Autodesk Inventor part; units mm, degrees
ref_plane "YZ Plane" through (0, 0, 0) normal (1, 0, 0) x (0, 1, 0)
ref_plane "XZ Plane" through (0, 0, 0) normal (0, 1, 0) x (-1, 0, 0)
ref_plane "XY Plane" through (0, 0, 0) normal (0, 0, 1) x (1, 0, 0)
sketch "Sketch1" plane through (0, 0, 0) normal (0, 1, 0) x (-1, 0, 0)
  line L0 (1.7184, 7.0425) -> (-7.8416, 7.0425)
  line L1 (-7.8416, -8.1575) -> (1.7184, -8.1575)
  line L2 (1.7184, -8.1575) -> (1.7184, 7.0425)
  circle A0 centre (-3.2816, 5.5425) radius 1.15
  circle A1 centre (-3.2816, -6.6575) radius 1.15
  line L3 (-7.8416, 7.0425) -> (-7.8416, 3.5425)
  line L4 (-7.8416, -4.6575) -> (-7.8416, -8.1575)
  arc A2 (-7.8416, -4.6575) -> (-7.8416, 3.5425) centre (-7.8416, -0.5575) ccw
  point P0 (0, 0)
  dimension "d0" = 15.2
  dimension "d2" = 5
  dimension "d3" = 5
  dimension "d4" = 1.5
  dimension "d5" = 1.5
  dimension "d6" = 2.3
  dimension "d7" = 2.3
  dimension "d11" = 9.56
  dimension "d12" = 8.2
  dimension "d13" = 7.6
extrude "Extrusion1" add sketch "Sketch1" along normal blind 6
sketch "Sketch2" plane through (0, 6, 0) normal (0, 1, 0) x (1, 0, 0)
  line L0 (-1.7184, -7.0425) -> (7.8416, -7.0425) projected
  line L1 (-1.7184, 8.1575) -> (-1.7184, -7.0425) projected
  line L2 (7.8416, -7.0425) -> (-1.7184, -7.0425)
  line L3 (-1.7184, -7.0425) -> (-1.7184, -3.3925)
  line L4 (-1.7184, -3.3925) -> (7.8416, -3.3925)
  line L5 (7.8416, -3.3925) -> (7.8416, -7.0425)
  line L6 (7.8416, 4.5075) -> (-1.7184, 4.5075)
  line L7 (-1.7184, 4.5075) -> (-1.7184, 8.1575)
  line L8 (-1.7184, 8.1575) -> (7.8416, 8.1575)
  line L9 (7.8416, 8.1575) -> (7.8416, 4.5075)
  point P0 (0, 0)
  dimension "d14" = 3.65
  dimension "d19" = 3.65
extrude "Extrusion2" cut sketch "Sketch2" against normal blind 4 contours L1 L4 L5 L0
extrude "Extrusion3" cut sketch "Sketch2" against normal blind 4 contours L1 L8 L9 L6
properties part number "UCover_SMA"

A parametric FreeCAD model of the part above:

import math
import FreeCAD as App
import Part
import Sketcher

V = App.Vector


def add_polygon(sketch, points):
    """Adds a closed chain of lines whose ends are joined by coincident constraints."""
    first, n = sketch.GeometryCount, len(points)
    for a, b in zip(points, points[1:] + points[:1]):
        sketch.addGeometry(Part.LineSegment(App.Vector(*a, 0), App.Vector(*b, 0)), False)
    for i in range(n):
        sketch.addConstraint(Sketcher.Constraint("Coincident", first + i, 2, first + (i + 1) % n, 1))

doc = App.newDocument("Part")
body = doc.addObject("PartDesign::Body", "Body")

# Sketch on XZ plane
sketch1 = doc.addObject("Sketcher::SketchObject", "Sketch")
body.addObject(sketch1)
sketch1.AttachmentSupport = (doc.XZ_Plane, [""])
sketch1.MapMode = "FlatFace"
sketch1.addGeometry([
    Part.LineSegment(V(-1.7, -8.2, 0), V(-1.7, 7, 0)),  # 0
    Part.LineSegment(V(-1.7, 7, 0), V(7.8, 7, 0)),  # 1
    Part.LineSegment(V(7.8, 7, 0), V(7.8, 3.5, 0)),  # 2
    Part.ArcOfCircle(Part.Circle(V(7.8, -0.6, 0), V(0, 0, 1), 4.1), math.radians(90), math.radians(270)),  # 3
    Part.LineSegment(V(7.8, -4.7, 0), V(7.8, -8.2, 0)),  # 4
    Part.LineSegment(V(7.8, -8.2, 0), V(-1.7, -8.2, 0)),  # 5
    Part.Circle(V(3.3, -6.7, 0), V(0, 0, 1), 1.1),  # 6
    Part.Circle(V(3.3, 5.5, 0), V(0, 0, 1), 1.1),  # 7
], False)
sketch1.addConstraint([
    Sketcher.Constraint("Coincident", 0, 2, 1, 1),
    Sketcher.Constraint("Coincident", 1, 2, 2, 1),
    Sketcher.Constraint("Coincident", 2, 2, 3, 1),
    Sketcher.Constraint("Coincident", 3, 2, 4, 1),
    Sketcher.Constraint("Coincident", 4, 2, 5, 1),
    Sketcher.Constraint("Coincident", 5, 2, 0, 1),
    Sketcher.Constraint("Vertical", 0),
    Sketcher.Constraint("Horizontal", 1),
    Sketcher.Constraint("Vertical", 2),
    Sketcher.Constraint("Vertical", 4),
    Sketcher.Constraint("Horizontal", 5),
    Sketcher.Constraint("Equal", 6, 7),
    Sketcher.Constraint("Vertical", 6, 3, 7, 3),
    Sketcher.Constraint("Vertical", 3, 3, 1, 2),
    Sketcher.Constraint("Vertical", 2, 2, 3, 2),
    Sketcher.Constraint("Equal", 2, 4),
    Sketcher.Constraint("Diameter", 6, 2.3),
    Sketcher.Constraint("Radius", 3, 4.1),
    Sketcher.Constraint("DistanceY", 0, 1, 0, 2, 15.2),
    Sketcher.Constraint("DistanceX", 0, 2, 7, 3, 5.0),
    Sketcher.Constraint("DistanceX", 1, 1, 1, 2, 9.56),
    Sketcher.Constraint("DistanceY", 7, 3, 0, 2, 1.5),
    Sketcher.Constraint("DistanceY", 4, 2, 6, 3, 1.5),
    Sketcher.Constraint("DistanceX", -1, 1, 3, 3, 7.8416),
    Sketcher.Constraint("DistanceY", 3, 3, -1, 1, 0.5575),
])
pad1 = doc.addObject("PartDesign::Pad", "Pad")
body.addObject(pad1)
pad1.Profile = sketch1
pad1.Length = 6
pad1.Reversed = True

# Sketch on XZ plane
sketch2 = doc.addObject("Sketcher::SketchObject", "Sketch001")
body.addObject(sketch2)
sketch2.AttachmentSupport = (doc.XZ_Plane, [""])
sketch2.MapMode = "FlatFace"
sketch2.AttachmentOffset = App.Placement(V(0, 0, -6), App.Rotation())
add_polygon(sketch2, [(-1.7, 3.4), (-1.7, 7), (7.8, 7), (7.8, 3.4)])  # lines 0-3
sketch2.addConstraint([
    Sketcher.Constraint("Vertical", 0),
    Sketcher.Constraint("Horizontal", 1),
    Sketcher.Constraint("Vertical", 2),
    Sketcher.Constraint("Horizontal", 3),
    Sketcher.Constraint("DistanceY", 0, 1, 0, 2, 3.65),
    Sketcher.Constraint("DistanceX", 1, 1, 1, 2, 9.56),
    Sketcher.Constraint("DistanceX", 0, 2, -1, 1, 1.7184),
    Sketcher.Constraint("DistanceY", -1, 1, 0, 2, 7.0425),
])
pocket1 = doc.addObject("PartDesign::Pocket", "Pocket")
body.addObject(pocket1)
pocket1.Profile = sketch2
pocket1.Length = 4
pocket1.Reversed = True

# Sketch on XZ plane
sketch3 = doc.addObject("Sketcher::SketchObject", "Sketch002")
body.addObject(sketch3)
sketch3.AttachmentSupport = (doc.XZ_Plane, [""])
sketch3.MapMode = "FlatFace"
sketch3.AttachmentOffset = App.Placement(V(0, 0, -6), App.Rotation())
add_polygon(sketch3, [(-1.7, -8.2), (-1.7, -4.5), (7.8, -4.5), (7.8, -8.2)])  # lines 0-3
sketch3.addConstraint([
    Sketcher.Constraint("Vertical", 0),
    Sketcher.Constraint("Horizontal", 1),
    Sketcher.Constraint("Vertical", 2),
    Sketcher.Constraint("Horizontal", 3),
    Sketcher.Constraint("DistanceY", 0, 1, 0, 2, 3.65),
    Sketcher.Constraint("DistanceX", 1, 1, 1, 2, 9.56),
    Sketcher.Constraint("DistanceX", 0, 2, -1, 1, 1.7184),
    Sketcher.Constraint("DistanceY", 0, 2, -1, 1, 4.5075),
])
pocket2 = doc.addObject("PartDesign::Pocket", "Pocket001")
body.addObject(pocket2)
pocket2.Profile = sketch3
pocket2.Length = 4
pocket2.Reversed = True

doc.recompute()
